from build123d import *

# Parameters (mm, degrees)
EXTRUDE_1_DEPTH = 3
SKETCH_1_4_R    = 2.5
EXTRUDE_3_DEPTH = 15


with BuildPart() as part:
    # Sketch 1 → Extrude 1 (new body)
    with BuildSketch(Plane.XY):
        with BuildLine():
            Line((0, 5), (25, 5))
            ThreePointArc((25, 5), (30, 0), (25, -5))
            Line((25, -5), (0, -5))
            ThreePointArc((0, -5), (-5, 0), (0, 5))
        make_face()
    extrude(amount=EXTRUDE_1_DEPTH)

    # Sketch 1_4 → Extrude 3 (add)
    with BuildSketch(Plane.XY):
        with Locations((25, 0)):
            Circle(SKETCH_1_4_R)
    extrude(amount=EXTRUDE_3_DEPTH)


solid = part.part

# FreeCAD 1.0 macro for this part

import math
import FreeCAD as App
import Part
import Sketcher
from FreeCAD import Vector

doc = App.newDocument("Part")
body = doc.addObject("PartDesign::Body", "Body")

sketch1 = body.newObject("Sketcher::SketchObject", "Sketch")
sketch1.AttachmentSupport = (doc.getObject("XY_Plane"), [""])
sketch1.MapMode = "FlatFace"
sketch1.addGeometry(Part.LineSegment(Vector(25, 5, 0), Vector(0, 5, 0)), False)
sketch1.addGeometry(Part.ArcOfCircle(Part.Circle(Vector(0, 0, 0), Vector(0, 0, 1), 5), math.radians(90), math.radians(270)), False)
sketch1.addGeometry(Part.LineSegment(Vector(0, -5, 0), Vector(25, -5, 0)), False)
sketch1.addGeometry(Part.ArcOfCircle(Part.Circle(Vector(25, 0, 0), Vector(0, 0, 1), 5), math.radians(-90), math.radians(90)), False)
sketch1.addConstraint(Sketcher.Constraint("Tangent", 0, 2, 1, 1))
sketch1.addConstraint(Sketcher.Constraint("Tangent", 1, 2, 2, 1))
sketch1.addConstraint(Sketcher.Constraint("Tangent", 2, 2, 3, 1))
sketch1.addConstraint(Sketcher.Constraint("Tangent", 3, 2, 0, 1))
sketch1.addConstraint(Sketcher.Constraint("Horizontal", 0))
sketch1.addConstraint(Sketcher.Constraint("Horizontal", 2))
sketch1.addConstraint(Sketcher.Constraint("Coincident", 1, 3, -1, 1))
sketch1.addConstraint(Sketcher.Constraint("Radius", 1, 5.0))
sketch1.addConstraint(Sketcher.Constraint("DistanceX", 0, 2, 0, 1, 25.0))
pad1 = body.newObject("PartDesign::Pad", "Pad")
pad1.Profile = sketch1
pad1.Length = 3

sketch2 = body.newObject("Sketcher::SketchObject", "Sketch001")
sketch2.AttachmentSupport = (doc.getObject("XY_Plane"), [""])
sketch2.MapMode = "FlatFace"
sketch2.addGeometry(Part.Circle(Vector(25, 0, 0), Vector(0, 0, 1), 2.5), False)
sketch2.addConstraint(Sketcher.Constraint("PointOnObject", 0, 3, -1))
sketch2.addConstraint(Sketcher.Constraint("Diameter", 0, 5.0))
sketch2.addConstraint(Sketcher.Constraint("DistanceX", -1, 1, 0, 3, 25.0))
pad2 = body.newObject("PartDesign::Pad", "Pad001")
pad2.Profile = sketch2
pad2.Length = 15

doc.recompute()
